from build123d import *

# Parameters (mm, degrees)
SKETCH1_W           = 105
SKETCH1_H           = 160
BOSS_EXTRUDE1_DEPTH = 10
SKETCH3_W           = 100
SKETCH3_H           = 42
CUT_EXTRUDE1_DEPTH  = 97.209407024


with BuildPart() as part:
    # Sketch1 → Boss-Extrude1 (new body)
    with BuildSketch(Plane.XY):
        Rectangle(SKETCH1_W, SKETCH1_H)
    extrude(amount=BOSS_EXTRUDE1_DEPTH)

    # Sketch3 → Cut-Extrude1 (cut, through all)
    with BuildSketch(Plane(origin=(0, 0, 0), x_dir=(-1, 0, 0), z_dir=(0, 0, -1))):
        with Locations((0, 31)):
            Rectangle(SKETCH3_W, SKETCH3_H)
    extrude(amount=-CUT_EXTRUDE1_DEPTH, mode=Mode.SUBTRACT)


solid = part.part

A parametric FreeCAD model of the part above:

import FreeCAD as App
import Part
import Sketcher
from FreeCAD import Vector
Q = App.Units.Quantity

doc = App.newDocument("Part")
body = doc.addObject("PartDesign::Body", "Body")

# Sketch on XY plane
sketch1 = doc.addObject("Sketcher::SketchObject", "Sketch")
body.addObject(sketch1)
sketch1.AttachmentSupport = (doc.XY_Plane, [""])
sketch1.MapMode = "FlatFace"
sketch1.addGeometry([
    Part.LineSegment(Vector(-52, 80, 0), Vector(-52, -80, 0)),
    Part.LineSegment(Vector(-52, -80, 0), Vector(52, -80, 0)),
    Part.LineSegment(Vector(52, -80, 0), Vector(52, 80, 0)),
    Part.LineSegment(Vector(52, 80, 0), Vector(-52, 80, 0)),
], False)
sketch1.addConstraint([
    Sketcher.Constraint("Coincident", 0, 2, 1, 1),
    Sketcher.Constraint("Coincident", 1, 2, 2, 1),
    Sketcher.Constraint("Coincident", 2, 2, 3, 1),
    Sketcher.Constraint("Coincident", 3, 2, 0, 1),
    Sketcher.Constraint("Vertical", 0),
    Sketcher.Constraint("Horizontal", 1),
    Sketcher.Constraint("Vertical", 2),
    Sketcher.Constraint("Horizontal", 3),
    Sketcher.Constraint("Symmetric", 0, 2, 2, 2, -1, 1),
    Sketcher.Constraint("DistanceX", 1, 1, 1, 2, Q("105 mm")),
    Sketcher.Constraint("DistanceY", 0, 2, 0, 1, Q("160 mm")),
])
pad1 = doc.addObject("PartDesign::Pad", "Pad")
body.addObject(pad1)
pad1.Profile = sketch1
pad1.Length = 10

# Sketch on XY plane
sketch2 = doc.addObject("Sketcher::SketchObject", "Sketch001")
body.addObject(sketch2)
sketch2.AttachmentSupport = (doc.XY_Plane, [""])
sketch2.MapMode = "FlatFace"
sketch2.addGeometry([
    Part.LineSegment(Vector(50, 52, 0), Vector(50, 10, 0)),
    Part.LineSegment(Vector(50, 10, 0), Vector(-50, 10, 0)),
    Part.LineSegment(Vector(-50, 10, 0), Vector(-50, 52, 0)),
    Part.LineSegment(Vector(-50, 52, 0), Vector(50, 52, 0)),
], False)
sketch2.addConstraint([
    Sketcher.Constraint("Coincident", 0, 2, 1, 1),
    Sketcher.Constraint("Coincident", 1, 2, 2, 1),
    Sketcher.Constraint("Coincident", 2, 2, 3, 1),
    Sketcher.Constraint("Coincident", 3, 2, 0, 1),
    Sketcher.Constraint("Vertical", 0),
    Sketcher.Constraint("Horizontal", 1),
    Sketcher.Constraint("Vertical", 2),
    Sketcher.Constraint("Horizontal", 3),
    Sketcher.Constraint("DistanceX", 1, 2, 1, 1, Q("100 mm")),
    Sketcher.Constraint("DistanceY", 0, 2, 0, 1, Q("42 mm")),
    Sketcher.Constraint("DistanceX", -1, 1, 0, 2, Q("50 mm")),
    Sketcher.Constraint("DistanceY", -1, 1, 0, 2, Q("10 mm")),
])
pocket1 = doc.addObject("PartDesign::Pocket", "Pocket")
body.addObject(pocket1)
pocket1.Profile = sketch2
pocket1.Type = "ThroughAll"
pocket1.Reversed = True

doc.recompute()
